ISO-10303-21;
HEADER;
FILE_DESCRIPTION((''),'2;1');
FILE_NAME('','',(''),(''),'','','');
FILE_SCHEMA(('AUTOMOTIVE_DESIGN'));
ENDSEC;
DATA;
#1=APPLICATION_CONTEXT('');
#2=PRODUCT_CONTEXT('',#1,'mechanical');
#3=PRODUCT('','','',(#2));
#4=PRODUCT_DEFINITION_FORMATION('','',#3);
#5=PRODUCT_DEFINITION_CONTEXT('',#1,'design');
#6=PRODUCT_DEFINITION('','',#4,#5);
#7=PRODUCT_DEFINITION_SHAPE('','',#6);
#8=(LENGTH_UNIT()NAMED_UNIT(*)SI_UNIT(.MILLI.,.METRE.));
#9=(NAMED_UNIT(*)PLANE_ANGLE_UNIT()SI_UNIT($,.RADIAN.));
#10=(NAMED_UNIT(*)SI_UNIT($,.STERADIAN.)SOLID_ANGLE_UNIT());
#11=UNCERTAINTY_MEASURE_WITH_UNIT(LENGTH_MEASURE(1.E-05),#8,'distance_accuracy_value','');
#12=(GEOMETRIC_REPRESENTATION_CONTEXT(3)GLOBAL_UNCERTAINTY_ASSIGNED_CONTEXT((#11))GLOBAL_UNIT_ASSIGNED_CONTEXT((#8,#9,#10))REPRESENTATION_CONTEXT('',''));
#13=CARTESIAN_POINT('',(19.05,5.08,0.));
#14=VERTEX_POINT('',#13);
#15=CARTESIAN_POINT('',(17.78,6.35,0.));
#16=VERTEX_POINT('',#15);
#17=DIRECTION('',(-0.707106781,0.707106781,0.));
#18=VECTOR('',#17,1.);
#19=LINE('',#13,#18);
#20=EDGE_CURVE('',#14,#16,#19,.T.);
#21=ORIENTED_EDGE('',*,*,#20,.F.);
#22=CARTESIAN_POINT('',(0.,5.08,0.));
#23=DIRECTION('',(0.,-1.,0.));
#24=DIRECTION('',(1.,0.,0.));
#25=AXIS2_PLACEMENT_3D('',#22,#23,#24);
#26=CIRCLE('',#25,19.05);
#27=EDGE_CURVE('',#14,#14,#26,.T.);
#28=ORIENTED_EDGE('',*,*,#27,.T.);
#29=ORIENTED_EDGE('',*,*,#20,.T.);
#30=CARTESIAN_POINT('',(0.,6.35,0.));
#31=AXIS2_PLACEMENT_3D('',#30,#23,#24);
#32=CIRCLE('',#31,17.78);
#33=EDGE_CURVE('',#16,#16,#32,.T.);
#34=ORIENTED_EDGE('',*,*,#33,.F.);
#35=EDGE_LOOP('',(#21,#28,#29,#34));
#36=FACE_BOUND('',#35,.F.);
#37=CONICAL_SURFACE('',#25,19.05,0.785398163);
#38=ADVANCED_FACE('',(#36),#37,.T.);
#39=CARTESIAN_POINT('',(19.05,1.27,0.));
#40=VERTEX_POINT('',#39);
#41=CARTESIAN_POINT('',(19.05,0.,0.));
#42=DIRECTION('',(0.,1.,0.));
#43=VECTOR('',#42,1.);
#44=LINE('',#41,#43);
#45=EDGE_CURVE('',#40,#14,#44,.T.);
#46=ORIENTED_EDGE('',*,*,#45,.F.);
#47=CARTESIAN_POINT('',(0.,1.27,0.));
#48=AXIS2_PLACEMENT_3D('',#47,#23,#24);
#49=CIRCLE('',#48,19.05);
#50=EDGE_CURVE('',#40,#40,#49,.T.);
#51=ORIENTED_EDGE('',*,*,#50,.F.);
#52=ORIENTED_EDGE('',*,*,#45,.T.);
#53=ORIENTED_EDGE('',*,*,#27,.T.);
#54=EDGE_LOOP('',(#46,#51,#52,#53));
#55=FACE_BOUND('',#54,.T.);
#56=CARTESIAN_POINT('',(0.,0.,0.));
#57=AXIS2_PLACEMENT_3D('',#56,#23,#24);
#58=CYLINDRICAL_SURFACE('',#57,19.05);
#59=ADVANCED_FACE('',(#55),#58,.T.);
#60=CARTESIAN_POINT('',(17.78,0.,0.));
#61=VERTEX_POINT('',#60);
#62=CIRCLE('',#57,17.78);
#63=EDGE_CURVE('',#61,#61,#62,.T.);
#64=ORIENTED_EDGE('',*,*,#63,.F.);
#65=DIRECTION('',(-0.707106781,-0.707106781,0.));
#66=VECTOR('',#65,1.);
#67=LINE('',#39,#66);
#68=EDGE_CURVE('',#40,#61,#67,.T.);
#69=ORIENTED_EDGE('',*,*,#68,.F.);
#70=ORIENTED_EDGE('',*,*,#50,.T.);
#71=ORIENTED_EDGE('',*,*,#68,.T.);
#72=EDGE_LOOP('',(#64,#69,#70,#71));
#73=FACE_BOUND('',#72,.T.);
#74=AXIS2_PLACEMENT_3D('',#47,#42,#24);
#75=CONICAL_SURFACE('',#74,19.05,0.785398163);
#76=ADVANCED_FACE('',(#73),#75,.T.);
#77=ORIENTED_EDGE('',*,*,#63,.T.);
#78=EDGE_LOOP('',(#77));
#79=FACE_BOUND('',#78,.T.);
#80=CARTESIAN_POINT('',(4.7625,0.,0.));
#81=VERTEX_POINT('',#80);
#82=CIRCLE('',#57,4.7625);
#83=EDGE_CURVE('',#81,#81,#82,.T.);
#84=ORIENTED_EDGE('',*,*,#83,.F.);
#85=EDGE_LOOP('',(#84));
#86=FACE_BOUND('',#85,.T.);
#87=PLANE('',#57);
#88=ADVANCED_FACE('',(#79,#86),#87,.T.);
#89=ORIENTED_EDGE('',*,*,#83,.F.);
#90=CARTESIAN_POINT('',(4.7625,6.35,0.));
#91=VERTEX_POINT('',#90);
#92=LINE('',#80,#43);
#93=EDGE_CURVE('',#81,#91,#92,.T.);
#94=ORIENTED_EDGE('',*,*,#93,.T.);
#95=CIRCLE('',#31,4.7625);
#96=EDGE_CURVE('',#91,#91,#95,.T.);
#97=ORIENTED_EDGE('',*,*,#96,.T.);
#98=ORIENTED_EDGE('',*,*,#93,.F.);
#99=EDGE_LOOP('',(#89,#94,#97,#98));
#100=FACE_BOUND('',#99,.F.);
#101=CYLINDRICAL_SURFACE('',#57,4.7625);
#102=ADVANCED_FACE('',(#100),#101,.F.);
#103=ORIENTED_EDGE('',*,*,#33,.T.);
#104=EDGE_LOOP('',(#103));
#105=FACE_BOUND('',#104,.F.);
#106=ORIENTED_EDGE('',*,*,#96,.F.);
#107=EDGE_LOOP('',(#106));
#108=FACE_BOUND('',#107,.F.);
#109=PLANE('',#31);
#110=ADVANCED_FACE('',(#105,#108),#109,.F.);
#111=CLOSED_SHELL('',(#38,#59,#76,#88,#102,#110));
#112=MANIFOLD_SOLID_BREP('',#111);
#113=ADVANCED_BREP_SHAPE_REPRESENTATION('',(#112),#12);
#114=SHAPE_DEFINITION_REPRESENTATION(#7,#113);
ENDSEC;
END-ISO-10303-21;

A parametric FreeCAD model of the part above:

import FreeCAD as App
import Part
import Sketcher
Q = App.Units.Quantity


def edges_at(feature, points):
    """Names of the edges that pass closest to the given points."""
    edges = feature.Shape.Edges
    near = lambda p: min(range(len(edges)), key=lambda i: edges[i].distToShape(Part.Vertex(*p))[0])
    return sorted({f"Edge{near(p) + 1}" for p in points})

doc = App.newDocument("Part")
body = doc.addObject("PartDesign::Body", "Body")

# Sketch on XZ plane
sketch1 = body.newObject("Sketcher::SketchObject", "Sketch")
sketch1.AttachmentSupport = (doc.getObject("XZ_Plane"), [""])
sketch1.MapMode = "FlatFace"
sketch1.addGeometry([
    Part.Circle(App.Vector(0, 0, 0), App.Vector(0, 0, 1), 19.1),
    Part.Circle(App.Vector(0, 0, 0), App.Vector(0, 0, 1), 4.8),
], False)
sketch1.addConstraint([
    Sketcher.Constraint("Coincident", 0, 3, -1, 1),
    Sketcher.Constraint("Coincident", 1, 3, -1, 1),
    Sketcher.Constraint("Diameter", 0, Q("1.5 in")),
    Sketcher.Constraint("Diameter", 1, Q("0.375 in")),
])
pad1 = body.newObject("PartDesign::Pad", "Pad")
pad1.Profile = sketch1
pad1.Length = Q("0.25 in")
pad1.Reversed = True
doc.recompute()

chamfer = body.newObject("PartDesign::Chamfer", "Chamfer")
chamfer.Base = (pad1, edges_at(pad1, [(-19.05, 0, 0), (-19.05, 6.35, 0)]))
chamfer.Size = Q("0.05 in")

doc.recompute()
